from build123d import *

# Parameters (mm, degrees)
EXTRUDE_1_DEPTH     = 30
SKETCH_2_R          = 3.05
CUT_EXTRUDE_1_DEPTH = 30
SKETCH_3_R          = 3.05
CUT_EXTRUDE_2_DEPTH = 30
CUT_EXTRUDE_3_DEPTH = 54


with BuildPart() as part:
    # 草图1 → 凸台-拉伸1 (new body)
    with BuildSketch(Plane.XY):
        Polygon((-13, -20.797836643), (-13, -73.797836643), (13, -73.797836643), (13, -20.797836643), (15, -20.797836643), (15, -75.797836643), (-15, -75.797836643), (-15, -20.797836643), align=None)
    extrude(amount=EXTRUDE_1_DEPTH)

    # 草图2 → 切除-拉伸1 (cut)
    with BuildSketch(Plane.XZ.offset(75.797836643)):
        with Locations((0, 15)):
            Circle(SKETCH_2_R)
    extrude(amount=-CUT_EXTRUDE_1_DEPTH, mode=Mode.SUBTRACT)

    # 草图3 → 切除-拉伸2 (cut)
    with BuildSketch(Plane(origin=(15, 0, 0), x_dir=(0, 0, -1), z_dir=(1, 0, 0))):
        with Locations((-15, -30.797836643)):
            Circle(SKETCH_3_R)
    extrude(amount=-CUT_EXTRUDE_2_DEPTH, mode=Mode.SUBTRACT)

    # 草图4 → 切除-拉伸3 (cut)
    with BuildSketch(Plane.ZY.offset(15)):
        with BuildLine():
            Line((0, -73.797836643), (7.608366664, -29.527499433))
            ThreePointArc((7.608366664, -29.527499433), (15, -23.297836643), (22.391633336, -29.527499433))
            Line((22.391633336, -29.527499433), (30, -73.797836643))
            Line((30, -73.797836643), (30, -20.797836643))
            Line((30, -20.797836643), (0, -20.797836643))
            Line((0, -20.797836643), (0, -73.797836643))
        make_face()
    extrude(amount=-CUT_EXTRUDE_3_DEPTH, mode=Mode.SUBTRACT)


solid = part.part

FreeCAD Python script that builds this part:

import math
import FreeCAD as App
import Part
import Sketcher

V = App.Vector

doc = App.newDocument("Part")
body = doc.addObject("PartDesign::Body", "Body")

# Sketch on XY plane
sketch1 = body.newObject("Sketcher::SketchObject", "Sketch")
sketch1.AttachmentSupport = (doc.getObject("XY_Plane"), [""])
sketch1.MapMode = "FlatFace"
sketch1.addGeometry(Part.LineSegment(V(-13, -73.8, 0), V(-13, -20.8, 0)), False)
sketch1.addGeometry(Part.LineSegment(V(-13, -20.8, 0), V(-15, -20.8, 0)), False)
sketch1.addGeometry(Part.LineSegment(V(-15, -20.8, 0), V(-15, -75.8, 0)), False)
sketch1.addGeometry(Part.LineSegment(V(-15, -75.8, 0), V(15, -75.8, 0)), False)
sketch1.addGeometry(Part.LineSegment(V(15, -75.8, 0), V(15, -20.8, 0)), False)
sketch1.addGeometry(Part.LineSegment(V(15, -20.8, 0), V(13, -20.8, 0)), False)
sketch1.addGeometry(Part.LineSegment(V(13, -20.8, 0), V(13, -73.8, 0)), False)
sketch1.addGeometry(Part.LineSegment(V(13, -73.8, 0), V(-13, -73.8, 0)), False)
sketch1.addConstraint(Sketcher.Constraint("Coincident", 0, 2, 1, 1))
sketch1.addConstraint(Sketcher.Constraint("Coincident", 1, 2, 2, 1))
sketch1.addConstraint(Sketcher.Constraint("Coincident", 2, 2, 3, 1))
sketch1.addConstraint(Sketcher.Constraint("Coincident", 3, 2, 4, 1))
sketch1.addConstraint(Sketcher.Constraint("Coincident", 4, 2, 5, 1))
sketch1.addConstraint(Sketcher.Constraint("Coincident", 5, 2, 6, 1))
sketch1.addConstraint(Sketcher.Constraint("Coincident", 6, 2, 7, 1))
sketch1.addConstraint(Sketcher.Constraint("Coincident", 7, 2, 0, 1))
sketch1.addConstraint(Sketcher.Constraint("Vertical", 0))
sketch1.addConstraint(Sketcher.Constraint("Horizontal", 1))
sketch1.addConstraint(Sketcher.Constraint("Vertical", 2))
sketch1.addConstraint(Sketcher.Constraint("Horizontal", 3))
sketch1.addConstraint(Sketcher.Constraint("Vertical", 4))
sketch1.addConstraint(Sketcher.Constraint("Horizontal", 5))
sketch1.addConstraint(Sketcher.Constraint("Vertical", 6))
sketch1.addConstraint(Sketcher.Constraint("Horizontal", 7))
sketch1.addConstraint(Sketcher.Constraint("Symmetric", 1, 2, 4, 2, -2))
sketch1.addConstraint(Sketcher.Constraint("Equal", 1, 5))
sketch1.addConstraint(Sketcher.Constraint("DistanceX", 1, 2, 1, 1, 2.0))
sketch1.addConstraint(Sketcher.Constraint("DistanceX", 3, 1, 3, 2, 30.0))
sketch1.addConstraint(Sketcher.Constraint("DistanceY", 0, 1, 0, 2, 53.0))
sketch1.addConstraint(Sketcher.Constraint("DistanceY", 2, 2, 2, 1, 55.0))
sketch1.addConstraint(Sketcher.Constraint("DistanceY", 0, 2, -1, 1, 20.797837))
pad1 = body.newObject("PartDesign::Pad", "Pad")
pad1.Profile = sketch1
pad1.Length = 30

# Sketch on XZ plane
sketch2 = body.newObject("Sketcher::SketchObject", "Sketch001")
sketch2.AttachmentSupport = (doc.getObject("XZ_Plane"), [""])
sketch2.MapMode = "FlatFace"
sketch2.AttachmentOffset = App.Placement(V(0, 0, 75.797837), App.Rotation())
sketch2.addGeometry(Part.Circle(V(0, 15, 0), V(0, 0, 1), 3), False)
sketch2.addConstraint(Sketcher.Constraint("PointOnObject", 0, 3, -2))
sketch2.addConstraint(Sketcher.Constraint("Diameter", 0, 6.1))
sketch2.addConstraint(Sketcher.Constraint("DistanceY", -1, 1, 0, 3, 15.0))
pocket1 = body.newObject("PartDesign::Pocket", "Pocket")
pocket1.Profile = sketch2
pocket1.Length = 30

# Sketch on YZ plane
sketch3 = body.newObject("Sketcher::SketchObject", "Sketch002")
sketch3.AttachmentSupport = (doc.getObject("YZ_Plane"), [""])
sketch3.MapMode = "FlatFace"
sketch3.AttachmentOffset = App.Placement(V(0, 0, 15), App.Rotation())
sketch3.addGeometry(Part.Circle(V(-30.8, 15, 0), V(0, 0, 1), 3), False)
sketch3.addConstraint(Sketcher.Constraint("Diameter", 0, 6.1))
sketch3.addConstraint(Sketcher.Constraint("DistanceY", -1, 1, 0, 3, 15.0))
sketch3.addConstraint(Sketcher.Constraint("DistanceX", 0, 3, -1, 1, 30.797837))
pocket2 = body.newObject("PartDesign::Pocket", "Pocket001")
pocket2.Profile = sketch3
pocket2.Length = 30

# Sketch on YZ plane
sketch4 = body.newObject("Sketcher::SketchObject", "Sketch003")
sketch4.AttachmentSupport = (doc.getObject("YZ_Plane"), [""])
sketch4.MapMode = "FlatFace"
sketch4.AttachmentOffset = App.Placement(V(0, 0, -15), App.Rotation())
sketch4.addGeometry(Part.LineSegment(V(-74, 0, 0), V(-30, 8, 0)), False)
sketch4.addGeometry(Part.ArcOfCircle(Part.Circle(V(-31, 15, 0), V(0, 0, 1), 8), math.radians(-80), math.radians(80)), False)
sketch4.addGeometry(Part.LineSegment(V(-30, 22, 0), V(-74, 30, 0)), False)
sketch4.addGeometry(Part.LineSegment(V(-74, 30, 0), V(-21, 30, 0)), False)
sketch4.addGeometry(Part.LineSegment(V(-21, 30, 0), V(-21, 0, 0)), False)
sketch4.addGeometry(Part.LineSegment(V(-21, 0, 0), V(-74, 0, 0)), False)
sketch4.addConstraint(Sketcher.Constraint("Tangent", 0, 2, 1, 1))
sketch4.addConstraint(Sketcher.Constraint("Tangent", 1, 2, 2, 1))
sketch4.addConstraint(Sketcher.Constraint("Coincident", 2, 2, 3, 1))
sketch4.addConstraint(Sketcher.Constraint("Coincident", 3, 2, 4, 1))
sketch4.addConstraint(Sketcher.Constraint("Coincident", 4, 2, 5, 1))
sketch4.addConstraint(Sketcher.Constraint("Coincident", 5, 2, 0, 1))
sketch4.addConstraint(Sketcher.Constraint("Horizontal", 3))
sketch4.addConstraint(Sketcher.Constraint("Vertical", 4))
sketch4.addConstraint(Sketcher.Constraint("Horizontal", 5))
sketch4.addConstraint(Sketcher.Constraint("PointOnObject", 4, 2, -1))
sketch4.addConstraint(Sketcher.Constraint("Vertical", 0, 2, 1, 2))
sketch4.addConstraint(Sketcher.Constraint("Vertical", 2, 2, 5, 2))
sketch4.addConstraint(Sketcher.Constraint("Radius", 1, 7.5))
sketch4.addConstraint(Sketcher.Constraint("DistanceX", 3, 1, 3, 2, 53.0))
sketch4.addConstraint(Sketcher.Constraint("DistanceY", 4, 2, 4, 1, 30.0))
sketch4.addConstraint(Sketcher.Constraint("DistanceX", 2, 2, 1, 3, 43.0))
sketch4.addConstraint(Sketcher.Constraint("DistanceX", 0, 2, -1, 1, 29.527499))
pocket3 = body.newObject("PartDesign::Pocket", "Pocket002")
pocket3.Profile = sketch4
pocket3.Length = 54
pocket3.Reversed = True

doc.recompute()
